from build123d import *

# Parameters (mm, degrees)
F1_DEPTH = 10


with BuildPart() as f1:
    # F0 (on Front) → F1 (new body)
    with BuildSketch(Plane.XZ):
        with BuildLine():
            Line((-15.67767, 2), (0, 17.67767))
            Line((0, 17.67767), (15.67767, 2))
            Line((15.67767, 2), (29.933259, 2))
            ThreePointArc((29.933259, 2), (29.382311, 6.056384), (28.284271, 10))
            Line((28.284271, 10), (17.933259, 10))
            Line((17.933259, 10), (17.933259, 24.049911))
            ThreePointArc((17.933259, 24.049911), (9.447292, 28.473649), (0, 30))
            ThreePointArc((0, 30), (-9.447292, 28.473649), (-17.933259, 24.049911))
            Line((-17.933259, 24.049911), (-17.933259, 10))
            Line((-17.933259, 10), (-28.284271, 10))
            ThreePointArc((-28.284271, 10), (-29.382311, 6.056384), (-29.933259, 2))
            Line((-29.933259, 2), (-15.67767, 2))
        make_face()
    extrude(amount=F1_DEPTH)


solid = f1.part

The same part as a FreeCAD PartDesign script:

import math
import FreeCAD as App
import Part
import Sketcher

V = App.Vector

doc = App.newDocument("Part")
body = doc.addObject("PartDesign::Body", "Body")

# Sketch on XZ plane
sketch1 = doc.addObject("Sketcher::SketchObject", "Sketch")
body.addObject(sketch1)
sketch1.AttachmentSupport = (doc.XZ_Plane, [""])
sketch1.MapMode = "FlatFace"
sketch1.addGeometry(Part.LineSegment(V(-16, 2, 0), V(0, 18, 0)), False)
sketch1.addGeometry(Part.LineSegment(V(0, 18, 0), V(16, 2, 0)), False)
sketch1.addGeometry(Part.LineSegment(V(16, 2, 0), V(30, 2, 0)), False)
sketch1.addGeometry(Part.ArcOfCircle(Part.Circle(V(0, 0, 0), V(0, 0, 1), 30), math.radians(3.82), math.radians(19.47)), False)
sketch1.addGeometry(Part.LineSegment(V(28, 10, 0), V(18, 10, 0)), False)
sketch1.addGeometry(Part.LineSegment(V(18, 10, 0), V(18, 24, 0)), False)
sketch1.addGeometry(Part.ArcOfCircle(Part.Circle(V(0, 0, 0), V(0, 0, 1), 30), math.radians(53), math.radians(90)), False)
sketch1.addGeometry(Part.ArcOfCircle(Part.Circle(V(0, 0, 0), V(0, 0, 1), 30), math.radians(90), math.radians(127)), False)
sketch1.addGeometry(Part.LineSegment(V(-18, 24, 0), V(-18, 10, 0)), False)
sketch1.addGeometry(Part.LineSegment(V(-18, 10, 0), V(-28, 10, 0)), False)
sketch1.addGeometry(Part.ArcOfCircle(Part.Circle(V(0, 0, 0), V(0, 0, 1), 30), math.radians(160.53), math.radians(176.18)), False)
sketch1.addGeometry(Part.LineSegment(V(-30, 2, 0), V(-16, 2, 0)), False)
sketch1.addConstraint(Sketcher.Constraint("Coincident", 0, 2, 1, 1))
sketch1.addConstraint(Sketcher.Constraint("Coincident", 1, 2, 2, 1))
sketch1.addConstraint(Sketcher.Constraint("Coincident", 2, 2, 3, 1))
sketch1.addConstraint(Sketcher.Constraint("Coincident", 3, 2, 4, 1))
sketch1.addConstraint(Sketcher.Constraint("Coincident", 4, 2, 5, 1))
sketch1.addConstraint(Sketcher.Constraint("Coincident", 5, 2, 6, 1))
sketch1.addConstraint(Sketcher.Constraint("Tangent", 6, 2, 7, 1))
sketch1.addConstraint(Sketcher.Constraint("Coincident", 7, 2, 8, 1))
sketch1.addConstraint(Sketcher.Constraint("Coincident", 8, 2, 9, 1))
sketch1.addConstraint(Sketcher.Constraint("Coincident", 9, 2, 10, 1))
sketch1.addConstraint(Sketcher.Constraint("Coincident", 10, 2, 11, 1))
sketch1.addConstraint(Sketcher.Constraint("Coincident", 11, 2, 0, 1))
sketch1.addConstraint(Sketcher.Constraint("Horizontal", 2))
sketch1.addConstraint(Sketcher.Constraint("Horizontal", 4))
sketch1.addConstraint(Sketcher.Constraint("Vertical", 5))
sketch1.addConstraint(Sketcher.Constraint("Vertical", 8))
sketch1.addConstraint(Sketcher.Constraint("Horizontal", 9))
sketch1.addConstraint(Sketcher.Constraint("Horizontal", 11))
sketch1.addConstraint(Sketcher.Constraint("Coincident", 3, 3, -1, 1))
sketch1.addConstraint(Sketcher.Constraint("Coincident", 6, 3, -1, 1))
sketch1.addConstraint(Sketcher.Constraint("Coincident", 10, 3, -1, 1))
sketch1.addConstraint(Sketcher.Constraint("Equal", 6, 7))
sketch1.addConstraint(Sketcher.Constraint("Equal", 3, 10))
sketch1.addConstraint(Sketcher.Constraint("Symmetric", 4, 2, 8, 2, -2))
sketch1.addConstraint(Sketcher.Constraint("Symmetric", 1, 2, 11, 2, -2))
sketch1.addConstraint(Sketcher.Constraint("PointOnObject", 0, 2, -2))
sketch1.addConstraint(Sketcher.Constraint("PointOnObject", 6, 2, -2))
sketch1.addConstraint(Sketcher.Constraint("Perpendicular", 0, 1))
sketch1.addConstraint(Sketcher.Constraint("DistanceY", -1, 1, 1, 2, 2.0))
sketch1.addConstraint(Sketcher.Constraint("DistanceY", -1, 1, 3, 2, 10.0))
sketch1.addConstraint(Sketcher.Constraint("DistanceY", -1, 1, 6, 2, 30.0))
sketch1.addConstraint(Sketcher.Constraint("DistanceX", 4, 2, 2, 2, 12.0))
sketch1.addConstraint(Sketcher.Constraint("Radius", 3, 30.000006))
sketch1.addConstraint(Sketcher.Constraint("DistanceX", 2, 1, 2, 2, 14.255589))
pad1 = doc.addObject("PartDesign::Pad", "Pad")
body.addObject(pad1)
pad1.Profile = sketch1
pad1.Length = 10

doc.recompute()
